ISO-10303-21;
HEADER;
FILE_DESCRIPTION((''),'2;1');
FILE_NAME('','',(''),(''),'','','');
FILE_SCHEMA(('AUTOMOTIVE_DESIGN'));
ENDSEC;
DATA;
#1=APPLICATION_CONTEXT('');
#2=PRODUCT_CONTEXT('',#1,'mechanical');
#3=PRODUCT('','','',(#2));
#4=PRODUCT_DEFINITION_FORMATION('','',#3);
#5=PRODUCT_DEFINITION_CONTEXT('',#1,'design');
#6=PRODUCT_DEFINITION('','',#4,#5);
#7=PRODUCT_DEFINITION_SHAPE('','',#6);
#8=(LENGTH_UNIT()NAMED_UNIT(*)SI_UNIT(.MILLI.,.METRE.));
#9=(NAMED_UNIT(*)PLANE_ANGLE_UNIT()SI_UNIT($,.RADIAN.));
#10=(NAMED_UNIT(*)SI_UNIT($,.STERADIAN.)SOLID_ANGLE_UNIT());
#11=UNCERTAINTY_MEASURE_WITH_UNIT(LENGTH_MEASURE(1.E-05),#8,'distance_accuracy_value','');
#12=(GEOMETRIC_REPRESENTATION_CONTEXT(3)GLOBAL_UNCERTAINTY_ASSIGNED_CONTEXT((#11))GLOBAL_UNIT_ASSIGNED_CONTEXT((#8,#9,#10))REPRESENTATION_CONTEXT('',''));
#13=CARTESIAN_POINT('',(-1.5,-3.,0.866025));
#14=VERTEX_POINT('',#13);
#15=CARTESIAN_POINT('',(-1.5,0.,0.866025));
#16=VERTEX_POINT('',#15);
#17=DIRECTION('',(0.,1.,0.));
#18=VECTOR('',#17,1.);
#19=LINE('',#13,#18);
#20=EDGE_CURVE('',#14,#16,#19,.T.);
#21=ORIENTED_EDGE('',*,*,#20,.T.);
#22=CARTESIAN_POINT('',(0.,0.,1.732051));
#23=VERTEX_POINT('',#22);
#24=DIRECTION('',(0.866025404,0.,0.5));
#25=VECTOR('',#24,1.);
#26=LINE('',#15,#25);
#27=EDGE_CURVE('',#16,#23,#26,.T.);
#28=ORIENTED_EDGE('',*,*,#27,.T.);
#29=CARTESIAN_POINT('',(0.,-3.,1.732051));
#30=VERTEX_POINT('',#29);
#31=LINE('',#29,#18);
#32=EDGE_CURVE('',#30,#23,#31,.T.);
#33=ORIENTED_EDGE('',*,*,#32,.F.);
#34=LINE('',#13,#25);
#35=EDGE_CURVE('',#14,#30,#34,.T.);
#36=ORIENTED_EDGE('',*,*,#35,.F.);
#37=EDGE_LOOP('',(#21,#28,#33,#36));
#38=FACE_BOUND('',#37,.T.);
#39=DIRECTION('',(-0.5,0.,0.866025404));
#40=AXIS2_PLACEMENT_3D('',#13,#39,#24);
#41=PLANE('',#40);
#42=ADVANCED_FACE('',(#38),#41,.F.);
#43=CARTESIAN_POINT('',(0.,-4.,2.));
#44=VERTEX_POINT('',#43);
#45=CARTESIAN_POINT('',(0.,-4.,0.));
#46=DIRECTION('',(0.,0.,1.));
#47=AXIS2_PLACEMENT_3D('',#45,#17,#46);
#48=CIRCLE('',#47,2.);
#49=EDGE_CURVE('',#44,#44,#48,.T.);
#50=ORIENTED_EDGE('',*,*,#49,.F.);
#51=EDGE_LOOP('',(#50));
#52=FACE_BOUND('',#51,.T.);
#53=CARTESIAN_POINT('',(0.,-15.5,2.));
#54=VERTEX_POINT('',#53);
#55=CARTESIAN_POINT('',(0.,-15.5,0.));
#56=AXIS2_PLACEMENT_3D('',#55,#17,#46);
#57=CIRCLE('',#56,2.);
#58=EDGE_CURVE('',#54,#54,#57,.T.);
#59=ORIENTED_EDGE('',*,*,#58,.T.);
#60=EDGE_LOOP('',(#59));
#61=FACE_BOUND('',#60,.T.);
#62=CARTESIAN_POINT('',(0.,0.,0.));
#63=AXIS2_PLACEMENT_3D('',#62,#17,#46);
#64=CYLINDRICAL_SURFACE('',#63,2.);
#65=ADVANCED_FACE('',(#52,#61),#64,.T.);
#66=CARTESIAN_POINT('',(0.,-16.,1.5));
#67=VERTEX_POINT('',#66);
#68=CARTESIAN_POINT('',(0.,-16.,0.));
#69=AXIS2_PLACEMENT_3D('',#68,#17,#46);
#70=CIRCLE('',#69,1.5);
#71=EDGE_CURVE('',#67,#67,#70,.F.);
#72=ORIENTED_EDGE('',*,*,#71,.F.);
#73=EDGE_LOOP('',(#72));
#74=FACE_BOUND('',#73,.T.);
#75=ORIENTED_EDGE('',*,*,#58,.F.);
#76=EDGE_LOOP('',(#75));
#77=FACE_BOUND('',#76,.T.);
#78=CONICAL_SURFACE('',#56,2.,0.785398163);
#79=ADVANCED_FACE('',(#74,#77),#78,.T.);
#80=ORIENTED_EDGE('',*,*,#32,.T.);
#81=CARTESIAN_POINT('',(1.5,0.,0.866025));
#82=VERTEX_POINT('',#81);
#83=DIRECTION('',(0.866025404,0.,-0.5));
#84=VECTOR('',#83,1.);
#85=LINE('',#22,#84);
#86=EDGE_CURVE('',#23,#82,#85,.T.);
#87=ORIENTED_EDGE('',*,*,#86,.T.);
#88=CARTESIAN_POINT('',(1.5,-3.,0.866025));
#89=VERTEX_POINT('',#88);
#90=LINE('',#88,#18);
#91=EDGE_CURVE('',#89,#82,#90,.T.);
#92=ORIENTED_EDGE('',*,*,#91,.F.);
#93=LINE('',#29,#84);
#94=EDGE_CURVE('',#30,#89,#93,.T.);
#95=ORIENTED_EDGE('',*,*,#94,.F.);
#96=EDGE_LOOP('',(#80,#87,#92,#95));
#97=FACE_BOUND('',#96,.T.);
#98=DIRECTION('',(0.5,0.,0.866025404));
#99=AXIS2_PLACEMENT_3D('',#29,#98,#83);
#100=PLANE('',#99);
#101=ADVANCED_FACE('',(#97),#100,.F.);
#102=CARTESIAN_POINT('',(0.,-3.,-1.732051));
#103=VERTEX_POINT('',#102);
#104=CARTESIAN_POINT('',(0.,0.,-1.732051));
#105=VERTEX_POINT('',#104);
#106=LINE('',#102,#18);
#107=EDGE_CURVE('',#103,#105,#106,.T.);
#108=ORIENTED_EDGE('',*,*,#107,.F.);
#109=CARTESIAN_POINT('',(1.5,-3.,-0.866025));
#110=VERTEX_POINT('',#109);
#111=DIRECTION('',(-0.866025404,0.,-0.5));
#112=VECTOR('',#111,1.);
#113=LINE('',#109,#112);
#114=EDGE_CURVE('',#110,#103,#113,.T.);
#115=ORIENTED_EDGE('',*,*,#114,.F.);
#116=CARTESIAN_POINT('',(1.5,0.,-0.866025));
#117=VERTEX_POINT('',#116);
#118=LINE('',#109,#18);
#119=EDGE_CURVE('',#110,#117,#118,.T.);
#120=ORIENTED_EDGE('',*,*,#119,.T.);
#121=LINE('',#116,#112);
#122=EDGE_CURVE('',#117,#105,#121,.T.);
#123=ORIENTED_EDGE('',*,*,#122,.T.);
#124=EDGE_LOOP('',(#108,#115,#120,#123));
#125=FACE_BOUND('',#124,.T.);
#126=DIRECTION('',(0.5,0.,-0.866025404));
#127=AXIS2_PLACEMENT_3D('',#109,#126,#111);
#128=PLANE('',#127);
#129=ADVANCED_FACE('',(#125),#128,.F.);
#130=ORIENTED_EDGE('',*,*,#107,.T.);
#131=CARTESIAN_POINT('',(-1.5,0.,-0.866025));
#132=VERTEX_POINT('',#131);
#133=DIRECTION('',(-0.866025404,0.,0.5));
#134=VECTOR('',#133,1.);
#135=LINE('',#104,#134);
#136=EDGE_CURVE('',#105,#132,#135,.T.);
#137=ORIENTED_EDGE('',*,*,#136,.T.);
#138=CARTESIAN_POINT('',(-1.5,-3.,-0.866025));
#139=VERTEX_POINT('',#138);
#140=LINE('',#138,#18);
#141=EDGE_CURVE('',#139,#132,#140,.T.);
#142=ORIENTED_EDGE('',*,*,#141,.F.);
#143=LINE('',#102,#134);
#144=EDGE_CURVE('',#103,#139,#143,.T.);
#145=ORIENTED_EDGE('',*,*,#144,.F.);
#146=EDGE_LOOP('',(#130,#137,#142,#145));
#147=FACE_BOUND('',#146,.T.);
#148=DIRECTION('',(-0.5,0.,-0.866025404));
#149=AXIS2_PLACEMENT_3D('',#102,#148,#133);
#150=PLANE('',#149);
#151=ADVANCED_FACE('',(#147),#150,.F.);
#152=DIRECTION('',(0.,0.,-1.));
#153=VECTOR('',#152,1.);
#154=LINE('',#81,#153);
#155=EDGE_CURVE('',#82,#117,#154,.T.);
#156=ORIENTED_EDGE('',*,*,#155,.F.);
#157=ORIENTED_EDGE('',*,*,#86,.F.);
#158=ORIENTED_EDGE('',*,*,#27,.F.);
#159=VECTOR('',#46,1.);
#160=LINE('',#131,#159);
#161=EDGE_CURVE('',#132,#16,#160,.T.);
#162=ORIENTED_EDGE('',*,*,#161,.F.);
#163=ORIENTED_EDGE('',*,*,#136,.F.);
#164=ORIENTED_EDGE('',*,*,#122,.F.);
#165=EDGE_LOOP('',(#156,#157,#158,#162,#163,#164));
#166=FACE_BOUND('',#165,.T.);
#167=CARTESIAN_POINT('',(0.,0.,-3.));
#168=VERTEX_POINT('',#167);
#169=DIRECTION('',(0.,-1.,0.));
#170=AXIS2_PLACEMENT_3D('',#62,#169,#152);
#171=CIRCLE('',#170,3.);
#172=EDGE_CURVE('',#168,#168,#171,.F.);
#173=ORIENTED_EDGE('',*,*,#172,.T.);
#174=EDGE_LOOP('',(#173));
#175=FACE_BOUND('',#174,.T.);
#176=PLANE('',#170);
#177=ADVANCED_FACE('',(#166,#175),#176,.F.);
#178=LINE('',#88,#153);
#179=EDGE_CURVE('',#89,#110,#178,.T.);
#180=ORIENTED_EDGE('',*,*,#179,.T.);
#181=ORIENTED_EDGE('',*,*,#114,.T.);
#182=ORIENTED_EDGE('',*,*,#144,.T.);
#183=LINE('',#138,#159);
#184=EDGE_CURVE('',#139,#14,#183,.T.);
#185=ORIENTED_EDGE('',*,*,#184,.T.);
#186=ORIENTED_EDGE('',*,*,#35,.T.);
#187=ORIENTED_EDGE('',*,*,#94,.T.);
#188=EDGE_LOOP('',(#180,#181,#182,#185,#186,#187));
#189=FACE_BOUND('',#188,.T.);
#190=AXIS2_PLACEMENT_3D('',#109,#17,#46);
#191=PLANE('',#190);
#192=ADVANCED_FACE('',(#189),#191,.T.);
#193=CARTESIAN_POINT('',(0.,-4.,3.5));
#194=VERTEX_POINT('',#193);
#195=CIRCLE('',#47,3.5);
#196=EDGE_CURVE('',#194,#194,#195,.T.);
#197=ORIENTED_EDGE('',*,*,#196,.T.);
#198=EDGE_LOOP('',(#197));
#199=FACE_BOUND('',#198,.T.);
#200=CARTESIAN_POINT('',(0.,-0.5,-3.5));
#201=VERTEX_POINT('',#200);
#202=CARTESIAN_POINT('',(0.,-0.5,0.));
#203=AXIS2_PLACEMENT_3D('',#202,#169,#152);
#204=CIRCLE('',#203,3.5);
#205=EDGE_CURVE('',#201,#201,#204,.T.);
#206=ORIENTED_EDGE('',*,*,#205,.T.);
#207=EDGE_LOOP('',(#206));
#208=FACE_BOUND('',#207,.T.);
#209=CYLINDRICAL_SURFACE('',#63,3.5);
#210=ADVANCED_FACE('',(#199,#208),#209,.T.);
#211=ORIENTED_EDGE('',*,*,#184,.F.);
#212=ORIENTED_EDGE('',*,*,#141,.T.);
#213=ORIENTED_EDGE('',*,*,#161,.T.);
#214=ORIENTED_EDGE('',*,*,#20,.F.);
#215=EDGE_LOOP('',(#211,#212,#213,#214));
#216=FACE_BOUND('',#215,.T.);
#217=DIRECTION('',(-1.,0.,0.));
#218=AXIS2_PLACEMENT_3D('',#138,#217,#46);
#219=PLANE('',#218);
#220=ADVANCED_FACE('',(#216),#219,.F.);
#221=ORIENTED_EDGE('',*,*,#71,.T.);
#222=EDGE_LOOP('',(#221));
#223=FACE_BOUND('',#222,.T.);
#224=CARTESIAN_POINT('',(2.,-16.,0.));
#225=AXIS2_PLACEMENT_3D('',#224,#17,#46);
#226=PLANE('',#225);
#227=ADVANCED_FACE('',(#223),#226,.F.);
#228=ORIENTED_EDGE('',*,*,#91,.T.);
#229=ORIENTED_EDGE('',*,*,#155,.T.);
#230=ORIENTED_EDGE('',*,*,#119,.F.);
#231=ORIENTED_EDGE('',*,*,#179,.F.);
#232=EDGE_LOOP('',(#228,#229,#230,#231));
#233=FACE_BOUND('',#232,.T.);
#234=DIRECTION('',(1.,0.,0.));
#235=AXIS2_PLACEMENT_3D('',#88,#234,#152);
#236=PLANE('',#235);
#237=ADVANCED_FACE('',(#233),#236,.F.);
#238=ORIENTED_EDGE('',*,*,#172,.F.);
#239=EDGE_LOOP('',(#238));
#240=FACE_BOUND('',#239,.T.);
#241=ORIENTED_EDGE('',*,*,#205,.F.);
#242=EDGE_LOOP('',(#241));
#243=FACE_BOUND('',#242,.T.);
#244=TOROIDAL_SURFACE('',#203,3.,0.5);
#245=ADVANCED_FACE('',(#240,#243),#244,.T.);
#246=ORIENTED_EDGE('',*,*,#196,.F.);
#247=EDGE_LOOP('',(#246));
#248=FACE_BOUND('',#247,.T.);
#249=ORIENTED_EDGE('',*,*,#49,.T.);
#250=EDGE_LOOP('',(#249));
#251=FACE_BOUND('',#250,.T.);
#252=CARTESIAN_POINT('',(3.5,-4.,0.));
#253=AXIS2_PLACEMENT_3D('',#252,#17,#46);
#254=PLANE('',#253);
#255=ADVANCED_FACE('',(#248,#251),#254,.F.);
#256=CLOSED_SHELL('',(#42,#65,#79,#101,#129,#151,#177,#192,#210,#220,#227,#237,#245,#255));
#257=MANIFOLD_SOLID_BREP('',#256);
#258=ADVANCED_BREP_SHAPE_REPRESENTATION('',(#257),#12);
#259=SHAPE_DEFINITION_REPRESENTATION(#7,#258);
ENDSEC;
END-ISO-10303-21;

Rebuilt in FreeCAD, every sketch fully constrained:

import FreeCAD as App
import Part
import Sketcher
from FreeCAD import Vector
Q = App.Units.Quantity


def edges_at(feature, points):
    """Names of the edges that pass closest to the given points."""
    edges = feature.Shape.Edges
    near = lambda p: min(range(len(edges)), key=lambda i: edges[i].distToShape(Part.Vertex(*p))[0])
    return sorted({f"Edge{near(p) + 1}" for p in points})


def add_polygon(sketch, points):
    """Adds a closed chain of lines whose ends are joined by coincident constraints."""
    first, n = sketch.GeometryCount, len(points)
    for a, b in zip(points, points[1:] + points[:1]):
        sketch.addGeometry(Part.LineSegment(App.Vector(*a, 0), App.Vector(*b, 0)), False)
    for i in range(n):
        sketch.addConstraint(Sketcher.Constraint("Coincident", first + i, 2, first + (i + 1) % n, 1))

doc = App.newDocument("Part")
body = doc.addObject("PartDesign::Body", "Body")

# Sketch on XY plane
sketch1 = body.newObject("Sketcher::SketchObject", "Sketch")
sketch1.AttachmentSupport = (doc.getObject("XY_Plane"), [""])
sketch1.MapMode = "FlatFace"
add_polygon(sketch1, [(3.5, 0), (0, 0), (0, -16), (2, -16), (2, -4), (3.5, -4)])  # lines 0-5
sketch1.addConstraint([
    Sketcher.Constraint("Horizontal", 0),
    Sketcher.Constraint("Vertical", 1),
    Sketcher.Constraint("Horizontal", 2),
    Sketcher.Constraint("Vertical", 3),
    Sketcher.Constraint("Horizontal", 4),
    Sketcher.Constraint("Vertical", 5),
    Sketcher.Constraint("Coincident", 0, 2, -1, 1),
    Sketcher.Constraint("DistanceX", 2, 1, 2, 2, 2.0),
    Sketcher.Constraint("DistanceY", 1, 2, 1, 1, 16.0),
    Sketcher.Constraint("DistanceY", 3, 1, 3, 2, 12.0),
    Sketcher.Constraint("DistanceX", 0, 2, 0, 1, 3.5),
])
revolution = body.newObject("PartDesign::Revolution", "Revolution")
revolution.Profile = sketch1
revolution.ReferenceAxis = (sketch1, ["V_Axis"])
revolution.Angle = 360

# Sketch on XZ plane
sketch2 = body.newObject("Sketcher::SketchObject", "Sketch001")
sketch2.AttachmentSupport = (doc.getObject("XZ_Plane"), [""])
sketch2.MapMode = "FlatFace"
add_polygon(sketch2, [(1.5, -0.866025), (0, -1.732051), (-1.5, -0.866025), (-1.5, 0.866025), (0, 1.732051), (1.5, 0.866025)])  # lines 0-5
sketch2.addConstraint([
    Sketcher.Constraint("Vertical", 2),
    Sketcher.Constraint("Vertical", 5),
    Sketcher.Constraint("Symmetric", 0, 2, 3, 2, -1, 1),
    Sketcher.Constraint("Symmetric", 1, 2, 4, 2, -1, 1),
    Sketcher.Constraint("PointOnObject", 0, 2, -2),
    Sketcher.Constraint("Parallel", 0, 3),
    Sketcher.Constraint("Horizontal", 2, 2, 4, 2),
    Sketcher.Constraint("Angle", 0, Q("-150 deg")),
    Sketcher.Constraint("DistanceX", 2, 2, 4, 2, 3.0),
    Sketcher.Constraint("DistanceY", 2, 1, 2, 2, 1.732051),
])
pocket1 = body.newObject("PartDesign::Pocket", "Pocket")
pocket1.Profile = sketch2
pocket1.Length = 3
pocket1.Reversed = True
doc.recompute()

chamfer = body.newObject("PartDesign::Chamfer", "Chamfer")
chamfer.Base = (pocket1, edges_at(pocket1, [(-2, -16, 0)]))
chamfer.Size = 0.5
doc.recompute()

fillet = body.newObject("PartDesign::Fillet", "Fillet")
fillet.Base = (chamfer, edges_at(chamfer, [(-3.5, 0, 0)]))
fillet.Radius = 0.5

doc.recompute()
